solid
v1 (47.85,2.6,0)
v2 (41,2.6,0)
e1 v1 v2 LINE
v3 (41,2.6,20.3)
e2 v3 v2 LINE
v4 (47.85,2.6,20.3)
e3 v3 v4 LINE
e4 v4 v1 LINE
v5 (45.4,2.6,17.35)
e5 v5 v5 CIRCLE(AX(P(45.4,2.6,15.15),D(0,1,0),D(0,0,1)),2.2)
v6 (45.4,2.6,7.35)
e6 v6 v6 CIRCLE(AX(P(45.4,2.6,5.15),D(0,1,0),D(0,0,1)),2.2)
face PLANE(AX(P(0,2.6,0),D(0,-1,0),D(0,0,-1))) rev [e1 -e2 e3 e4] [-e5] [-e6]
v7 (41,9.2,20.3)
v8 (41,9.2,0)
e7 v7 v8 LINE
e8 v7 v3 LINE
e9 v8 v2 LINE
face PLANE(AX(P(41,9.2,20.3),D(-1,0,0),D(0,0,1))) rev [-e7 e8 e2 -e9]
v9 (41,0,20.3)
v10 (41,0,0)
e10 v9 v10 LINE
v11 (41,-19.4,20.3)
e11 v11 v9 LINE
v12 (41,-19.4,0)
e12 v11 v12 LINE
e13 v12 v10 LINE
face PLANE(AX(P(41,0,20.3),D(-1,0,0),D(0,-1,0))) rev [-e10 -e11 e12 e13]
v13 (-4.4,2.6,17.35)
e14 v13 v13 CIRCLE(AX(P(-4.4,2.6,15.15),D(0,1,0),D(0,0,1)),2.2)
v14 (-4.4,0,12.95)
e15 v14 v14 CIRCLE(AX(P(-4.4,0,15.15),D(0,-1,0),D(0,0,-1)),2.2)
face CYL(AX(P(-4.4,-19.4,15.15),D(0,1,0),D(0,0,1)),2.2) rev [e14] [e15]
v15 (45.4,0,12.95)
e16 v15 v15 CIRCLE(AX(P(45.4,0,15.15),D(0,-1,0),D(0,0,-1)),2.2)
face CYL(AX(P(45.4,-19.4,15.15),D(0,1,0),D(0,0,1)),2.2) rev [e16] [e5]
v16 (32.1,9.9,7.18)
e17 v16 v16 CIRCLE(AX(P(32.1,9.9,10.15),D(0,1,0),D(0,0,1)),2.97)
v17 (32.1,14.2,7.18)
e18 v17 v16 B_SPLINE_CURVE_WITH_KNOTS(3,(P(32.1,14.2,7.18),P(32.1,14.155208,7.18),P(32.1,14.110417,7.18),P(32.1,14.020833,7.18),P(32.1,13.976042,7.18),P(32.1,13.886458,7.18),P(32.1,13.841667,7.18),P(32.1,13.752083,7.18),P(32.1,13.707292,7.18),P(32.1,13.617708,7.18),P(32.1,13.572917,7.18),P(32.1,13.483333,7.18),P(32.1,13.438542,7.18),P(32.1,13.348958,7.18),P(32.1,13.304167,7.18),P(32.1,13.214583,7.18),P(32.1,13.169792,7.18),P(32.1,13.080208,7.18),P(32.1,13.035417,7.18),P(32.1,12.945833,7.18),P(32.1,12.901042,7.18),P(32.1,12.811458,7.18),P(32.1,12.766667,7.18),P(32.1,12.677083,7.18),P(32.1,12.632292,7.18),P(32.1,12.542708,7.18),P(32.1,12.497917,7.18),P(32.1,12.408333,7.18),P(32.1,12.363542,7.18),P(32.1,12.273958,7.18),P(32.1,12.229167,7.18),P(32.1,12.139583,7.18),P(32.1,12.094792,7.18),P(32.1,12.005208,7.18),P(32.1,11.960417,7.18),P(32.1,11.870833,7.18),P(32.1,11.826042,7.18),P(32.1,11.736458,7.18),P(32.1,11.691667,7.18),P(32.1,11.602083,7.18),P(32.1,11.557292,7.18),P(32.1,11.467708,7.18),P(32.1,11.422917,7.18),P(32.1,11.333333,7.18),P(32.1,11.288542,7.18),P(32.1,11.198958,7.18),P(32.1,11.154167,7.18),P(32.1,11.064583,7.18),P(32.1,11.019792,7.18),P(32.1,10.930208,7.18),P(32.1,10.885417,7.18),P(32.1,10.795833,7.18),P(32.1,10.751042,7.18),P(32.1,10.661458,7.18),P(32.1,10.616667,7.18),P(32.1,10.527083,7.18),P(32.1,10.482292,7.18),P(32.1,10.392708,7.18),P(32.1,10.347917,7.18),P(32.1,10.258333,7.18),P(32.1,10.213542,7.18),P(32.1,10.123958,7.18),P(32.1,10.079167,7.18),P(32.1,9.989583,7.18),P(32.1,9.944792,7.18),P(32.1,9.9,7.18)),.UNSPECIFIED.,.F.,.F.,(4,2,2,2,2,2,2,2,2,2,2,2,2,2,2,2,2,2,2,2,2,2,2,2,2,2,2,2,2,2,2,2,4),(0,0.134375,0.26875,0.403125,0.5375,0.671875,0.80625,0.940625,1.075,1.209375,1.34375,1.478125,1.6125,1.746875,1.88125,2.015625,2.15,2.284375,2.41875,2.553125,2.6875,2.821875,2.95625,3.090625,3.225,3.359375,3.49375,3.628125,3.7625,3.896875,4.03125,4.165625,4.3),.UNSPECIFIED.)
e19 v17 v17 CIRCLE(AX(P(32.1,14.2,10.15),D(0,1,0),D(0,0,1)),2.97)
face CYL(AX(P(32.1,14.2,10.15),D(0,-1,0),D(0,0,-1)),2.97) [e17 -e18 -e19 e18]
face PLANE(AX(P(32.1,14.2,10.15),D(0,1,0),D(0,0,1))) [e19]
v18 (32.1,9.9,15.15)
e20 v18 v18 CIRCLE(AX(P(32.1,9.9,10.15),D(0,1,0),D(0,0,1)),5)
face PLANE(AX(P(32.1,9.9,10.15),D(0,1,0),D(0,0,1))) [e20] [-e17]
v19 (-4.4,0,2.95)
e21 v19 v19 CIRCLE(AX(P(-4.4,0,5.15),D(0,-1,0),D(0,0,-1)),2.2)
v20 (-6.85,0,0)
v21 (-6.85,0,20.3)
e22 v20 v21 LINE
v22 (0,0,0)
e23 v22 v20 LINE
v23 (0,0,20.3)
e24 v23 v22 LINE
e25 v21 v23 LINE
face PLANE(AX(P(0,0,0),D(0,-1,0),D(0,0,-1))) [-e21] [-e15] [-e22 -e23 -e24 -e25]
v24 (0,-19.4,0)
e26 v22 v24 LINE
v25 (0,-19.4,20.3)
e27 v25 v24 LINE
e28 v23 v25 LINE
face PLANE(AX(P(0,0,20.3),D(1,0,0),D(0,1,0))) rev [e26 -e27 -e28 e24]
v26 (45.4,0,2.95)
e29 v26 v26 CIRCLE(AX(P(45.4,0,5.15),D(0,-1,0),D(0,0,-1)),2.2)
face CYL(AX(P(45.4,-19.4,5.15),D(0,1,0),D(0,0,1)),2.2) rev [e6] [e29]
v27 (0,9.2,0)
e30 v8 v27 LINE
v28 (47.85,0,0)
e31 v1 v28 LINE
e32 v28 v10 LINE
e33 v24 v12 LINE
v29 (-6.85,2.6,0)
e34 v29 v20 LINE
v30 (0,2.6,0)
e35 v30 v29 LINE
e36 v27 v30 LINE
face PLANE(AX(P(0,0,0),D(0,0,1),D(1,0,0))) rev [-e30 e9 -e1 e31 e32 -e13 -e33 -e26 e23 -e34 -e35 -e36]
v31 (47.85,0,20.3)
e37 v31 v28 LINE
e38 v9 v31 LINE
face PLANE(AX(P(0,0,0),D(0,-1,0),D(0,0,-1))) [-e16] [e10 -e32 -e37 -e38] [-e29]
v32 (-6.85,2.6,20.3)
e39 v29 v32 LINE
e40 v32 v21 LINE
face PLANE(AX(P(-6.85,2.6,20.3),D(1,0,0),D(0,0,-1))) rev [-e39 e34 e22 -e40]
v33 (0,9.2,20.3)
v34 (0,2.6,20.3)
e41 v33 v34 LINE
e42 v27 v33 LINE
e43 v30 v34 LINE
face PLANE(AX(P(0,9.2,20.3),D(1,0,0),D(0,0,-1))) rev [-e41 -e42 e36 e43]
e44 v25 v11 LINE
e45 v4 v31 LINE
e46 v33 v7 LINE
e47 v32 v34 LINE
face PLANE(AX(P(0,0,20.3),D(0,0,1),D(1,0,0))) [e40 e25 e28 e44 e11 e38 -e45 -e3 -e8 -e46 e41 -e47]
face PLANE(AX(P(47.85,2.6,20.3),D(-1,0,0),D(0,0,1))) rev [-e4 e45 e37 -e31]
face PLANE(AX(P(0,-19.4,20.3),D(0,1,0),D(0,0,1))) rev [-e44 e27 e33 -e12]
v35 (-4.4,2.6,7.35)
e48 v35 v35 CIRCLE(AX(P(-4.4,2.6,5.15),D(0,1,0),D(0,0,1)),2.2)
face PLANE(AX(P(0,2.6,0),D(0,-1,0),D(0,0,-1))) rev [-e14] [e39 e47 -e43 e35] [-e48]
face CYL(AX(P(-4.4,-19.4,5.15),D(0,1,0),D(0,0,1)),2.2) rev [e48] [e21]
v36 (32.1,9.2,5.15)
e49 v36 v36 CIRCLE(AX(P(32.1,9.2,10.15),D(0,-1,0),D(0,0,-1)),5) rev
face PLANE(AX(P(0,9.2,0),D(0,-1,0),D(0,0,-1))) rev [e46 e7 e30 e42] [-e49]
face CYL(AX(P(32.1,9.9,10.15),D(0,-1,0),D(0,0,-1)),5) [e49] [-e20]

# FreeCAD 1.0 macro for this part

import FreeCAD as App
import Part
import Sketcher
from FreeCAD import Vector
Q = App.Units.Quantity

doc = App.newDocument("Part")
body = doc.addObject("PartDesign::Body", "Body")

# Sketch on XY plane
sketch1 = doc.addObject("Sketcher::SketchObject", "Sketch")
body.addObject(sketch1)
sketch1.AttachmentSupport = (doc.XY_Plane, [""])
sketch1.MapMode = "FlatFace"
sketch1.addGeometry([
    Part.LineSegment(Vector(0, 0, 0), Vector(0, -19.4, 0)),
    Part.LineSegment(Vector(0, -19.4, 0), Vector(41, -19.4, 0)),
    Part.LineSegment(Vector(41, -19.4, 0), Vector(41, 0, 0)),
    Part.LineSegment(Vector(41, 0, 0), Vector(0, 0, 0)),
], False)
sketch1.addConstraint([
    Sketcher.Constraint("Coincident", 0, 2, 1, 1),
    Sketcher.Constraint("Coincident", 1, 2, 2, 1),
    Sketcher.Constraint("Coincident", 2, 2, 3, 1),
    Sketcher.Constraint("Coincident", 3, 2, 0, 1),
    Sketcher.Constraint("Vertical", 0),
    Sketcher.Constraint("Horizontal", 1),
    Sketcher.Constraint("Vertical", 2),
    Sketcher.Constraint("Horizontal", 3),
    Sketcher.Constraint("Coincident", 3, 2, -1, 1),
    Sketcher.Constraint("DistanceX", 1, 1, 1, 2, Q("41 mm")),
    Sketcher.Constraint("DistanceY", 0, 2, 0, 1, Q("19.4 mm")),
])
pad1 = doc.addObject("PartDesign::Pad", "Pad")
body.addObject(pad1)
pad1.Profile = sketch1
pad1.Length = 20.3

# Sketch on XZ plane
sketch2 = doc.addObject("Sketcher::SketchObject", "Sketch001")
body.addObject(sketch2)
sketch2.AttachmentSupport = (doc.XZ_Plane, [""])
sketch2.MapMode = "FlatFace"
sketch2.addGeometry([
    Part.LineSegment(Vector(-6.85, 0, 0), Vector(-6.85, 20.3, 0)),
    Part.LineSegment(Vector(-6.85, 20.3, 0), Vector(47.85, 20.3, 0)),
    Part.LineSegment(Vector(47.85, 20.3, 0), Vector(47.85, 0, 0)),
    Part.LineSegment(Vector(47.85, 0, 0), Vector(-6.85, 0, 0)),
], False)
sketch2.addConstraint([
    Sketcher.Constraint("Coincident", 0, 2, 1, 1),
    Sketcher.Constraint("Coincident", 1, 2, 2, 1),
    Sketcher.Constraint("Coincident", 2, 2, 3, 1),
    Sketcher.Constraint("Coincident", 3, 2, 0, 1),
    Sketcher.Constraint("Vertical", 0),
    Sketcher.Constraint("Horizontal", 1),
    Sketcher.Constraint("Vertical", 2),
    Sketcher.Constraint("Horizontal", 3),
    Sketcher.Constraint("PointOnObject", 2, 2, -1),
    Sketcher.Constraint("DistanceX", 1, 1, 1, 2, Q("54.7 mm")),
    Sketcher.Constraint("DistanceY", 0, 1, 0, 2, Q("20.3 mm")),
    Sketcher.Constraint("DistanceX", 0, 2, -1, 1, Q("6.85 mm")),
])
pad2 = doc.addObject("PartDesign::Pad", "Pad001")
body.addObject(pad2)
pad2.Profile = sketch2
pad2.Length = 2.6
pad2.Reversed = True

# Sketch on XZ plane
sketch3 = doc.addObject("Sketcher::SketchObject", "Sketch002")
body.addObject(sketch3)
sketch3.AttachmentSupport = (doc.XZ_Plane, [""])
sketch3.MapMode = "FlatFace"
sketch3.AttachmentOffset = App.Placement(Vector(0, 0, -2.6), App.Rotation())
sketch3.addGeometry([
    Part.LineSegment(Vector(0, 0, 0), Vector(0, 20.3, 0)),
    Part.LineSegment(Vector(0, 20.3, 0), Vector(41, 20.3, 0)),
    Part.LineSegment(Vector(41, 20.3, 0), Vector(41, 0, 0)),
    Part.LineSegment(Vector(41, 0, 0), Vector(0, 0, 0)),
], False)
sketch3.addConstraint([
    Sketcher.Constraint("Coincident", 0, 2, 1, 1),
    Sketcher.Constraint("Coincident", 1, 2, 2, 1),
    Sketcher.Constraint("Coincident", 2, 2, 3, 1),
    Sketcher.Constraint("Coincident", 3, 2, 0, 1),
    Sketcher.Constraint("Vertical", 0),
    Sketcher.Constraint("Horizontal", 1),
    Sketcher.Constraint("Vertical", 2),
    Sketcher.Constraint("Horizontal", 3),
    Sketcher.Constraint("Coincident", 3, 2, -1, 1),
    Sketcher.Constraint("DistanceX", 1, 1, 1, 2, Q("41 mm")),
    Sketcher.Constraint("DistanceY", 0, 1, 0, 2, Q("20.3 mm")),
])
pad3 = doc.addObject("PartDesign::Pad", "Pad002")
body.addObject(pad3)
pad3.Profile = sketch3
pad3.Length = 6.6
pad3.Reversed = True

# Sketch on XZ plane
sketch4 = doc.addObject("Sketcher::SketchObject", "Sketch003")
body.addObject(sketch4)
sketch4.AttachmentSupport = (doc.XZ_Plane, [""])
sketch4.MapMode = "FlatFace"
sketch4.AttachmentOffset = App.Placement(Vector(0, 0, -2.6), App.Rotation())
sketch4.addGeometry([
    Part.Circle(Vector(-4.4, 15.15, 0), Vector(0, 0, 1), 2.2),
    Part.Circle(Vector(-4.4, 5.15, 0), Vector(0, 0, 1), 2.2),
    Part.Circle(Vector(45.4, 15.15, 0), Vector(0, 0, 1), 2.2),
    Part.Circle(Vector(45.4, 5.15, 0), Vector(0, 0, 1), 2.2),
], False)
sketch4.addConstraint([
    Sketcher.Constraint("Equal", 0, 1),
    Sketcher.Constraint("Equal", 1, 2),
    Sketcher.Constraint("Equal", 2, 3),
    Sketcher.Constraint("Horizontal", 0, 3, 2, 3),
    Sketcher.Constraint("Horizontal", 1, 3, 3, 3),
    Sketcher.Constraint("Vertical", 0, 3, 1, 3),
    Sketcher.Constraint("Vertical", 2, 3, 3, 3),
    Sketcher.Constraint("Diameter", 0, Q("4.4 mm")),
    Sketcher.Constraint("DistanceY", 1, 3, 0, 3, Q("10 mm")),
    Sketcher.Constraint("DistanceX", 0, 3, -1, 1, Q("4.4 mm")),
    Sketcher.Constraint("DistanceX", -1, 1, 2, 3, Q("45.4 mm")),
    Sketcher.Constraint("DistanceY", -1, 1, 0, 3, Q("15.15 mm")),
])
pocket1 = doc.addObject("PartDesign::Pocket", "Pocket")
body.addObject(pocket1)
pocket1.Profile = sketch4
pocket1.Type = "ThroughAll"
pocket1.Reversed = True

# Sketch on XZ plane
sketch5 = doc.addObject("Sketcher::SketchObject", "Sketch004")
body.addObject(sketch5)
sketch5.AttachmentSupport = (doc.XZ_Plane, [""])
sketch5.MapMode = "FlatFace"
sketch5.AttachmentOffset = App.Placement(Vector(0, 0, -9.2), App.Rotation())
sketch5.addGeometry(Part.Circle(Vector(32.1, 10.15, 0), Vector(0, 0, 1), 5), False)
sketch5.addConstraint([
    Sketcher.Constraint("Diameter", 0, Q("10 mm")),
    Sketcher.Constraint("DistanceX", -1, 1, 0, 3, Q("32.1 mm")),
    Sketcher.Constraint("DistanceY", -1, 1, 0, 3, Q("10.15 mm")),
])
pad4 = doc.addObject("PartDesign::Pad", "Pad003")
body.addObject(pad4)
pad4.Profile = sketch5
pad4.Length = 0.7
pad4.Reversed = True

# Sketch on XZ plane
sketch6 = doc.addObject("Sketcher::SketchObject", "Sketch005")
body.addObject(sketch6)
sketch6.AttachmentSupport = (doc.XZ_Plane, [""])
sketch6.MapMode = "FlatFace"
sketch6.AttachmentOffset = App.Placement(Vector(0, 0, -9.9), App.Rotation())
sketch6.addGeometry(Part.Circle(Vector(32.1, 10.15, 0), Vector(0, 0, 1), 2.97), False)
sketch6.addConstraint([
    Sketcher.Constraint("Diameter", 0, Q("5.94 mm")),
    Sketcher.Constraint("DistanceX", -1, 1, 0, 3, Q("32.1 mm")),
    Sketcher.Constraint("DistanceY", -1, 1, 0, 3, Q("10.15 mm")),
])
pad5 = doc.addObject("PartDesign::Pad", "Pad004")
body.addObject(pad5)
pad5.Profile = sketch6
pad5.Length = 4.3
pad5.Reversed = True

doc.recompute()
